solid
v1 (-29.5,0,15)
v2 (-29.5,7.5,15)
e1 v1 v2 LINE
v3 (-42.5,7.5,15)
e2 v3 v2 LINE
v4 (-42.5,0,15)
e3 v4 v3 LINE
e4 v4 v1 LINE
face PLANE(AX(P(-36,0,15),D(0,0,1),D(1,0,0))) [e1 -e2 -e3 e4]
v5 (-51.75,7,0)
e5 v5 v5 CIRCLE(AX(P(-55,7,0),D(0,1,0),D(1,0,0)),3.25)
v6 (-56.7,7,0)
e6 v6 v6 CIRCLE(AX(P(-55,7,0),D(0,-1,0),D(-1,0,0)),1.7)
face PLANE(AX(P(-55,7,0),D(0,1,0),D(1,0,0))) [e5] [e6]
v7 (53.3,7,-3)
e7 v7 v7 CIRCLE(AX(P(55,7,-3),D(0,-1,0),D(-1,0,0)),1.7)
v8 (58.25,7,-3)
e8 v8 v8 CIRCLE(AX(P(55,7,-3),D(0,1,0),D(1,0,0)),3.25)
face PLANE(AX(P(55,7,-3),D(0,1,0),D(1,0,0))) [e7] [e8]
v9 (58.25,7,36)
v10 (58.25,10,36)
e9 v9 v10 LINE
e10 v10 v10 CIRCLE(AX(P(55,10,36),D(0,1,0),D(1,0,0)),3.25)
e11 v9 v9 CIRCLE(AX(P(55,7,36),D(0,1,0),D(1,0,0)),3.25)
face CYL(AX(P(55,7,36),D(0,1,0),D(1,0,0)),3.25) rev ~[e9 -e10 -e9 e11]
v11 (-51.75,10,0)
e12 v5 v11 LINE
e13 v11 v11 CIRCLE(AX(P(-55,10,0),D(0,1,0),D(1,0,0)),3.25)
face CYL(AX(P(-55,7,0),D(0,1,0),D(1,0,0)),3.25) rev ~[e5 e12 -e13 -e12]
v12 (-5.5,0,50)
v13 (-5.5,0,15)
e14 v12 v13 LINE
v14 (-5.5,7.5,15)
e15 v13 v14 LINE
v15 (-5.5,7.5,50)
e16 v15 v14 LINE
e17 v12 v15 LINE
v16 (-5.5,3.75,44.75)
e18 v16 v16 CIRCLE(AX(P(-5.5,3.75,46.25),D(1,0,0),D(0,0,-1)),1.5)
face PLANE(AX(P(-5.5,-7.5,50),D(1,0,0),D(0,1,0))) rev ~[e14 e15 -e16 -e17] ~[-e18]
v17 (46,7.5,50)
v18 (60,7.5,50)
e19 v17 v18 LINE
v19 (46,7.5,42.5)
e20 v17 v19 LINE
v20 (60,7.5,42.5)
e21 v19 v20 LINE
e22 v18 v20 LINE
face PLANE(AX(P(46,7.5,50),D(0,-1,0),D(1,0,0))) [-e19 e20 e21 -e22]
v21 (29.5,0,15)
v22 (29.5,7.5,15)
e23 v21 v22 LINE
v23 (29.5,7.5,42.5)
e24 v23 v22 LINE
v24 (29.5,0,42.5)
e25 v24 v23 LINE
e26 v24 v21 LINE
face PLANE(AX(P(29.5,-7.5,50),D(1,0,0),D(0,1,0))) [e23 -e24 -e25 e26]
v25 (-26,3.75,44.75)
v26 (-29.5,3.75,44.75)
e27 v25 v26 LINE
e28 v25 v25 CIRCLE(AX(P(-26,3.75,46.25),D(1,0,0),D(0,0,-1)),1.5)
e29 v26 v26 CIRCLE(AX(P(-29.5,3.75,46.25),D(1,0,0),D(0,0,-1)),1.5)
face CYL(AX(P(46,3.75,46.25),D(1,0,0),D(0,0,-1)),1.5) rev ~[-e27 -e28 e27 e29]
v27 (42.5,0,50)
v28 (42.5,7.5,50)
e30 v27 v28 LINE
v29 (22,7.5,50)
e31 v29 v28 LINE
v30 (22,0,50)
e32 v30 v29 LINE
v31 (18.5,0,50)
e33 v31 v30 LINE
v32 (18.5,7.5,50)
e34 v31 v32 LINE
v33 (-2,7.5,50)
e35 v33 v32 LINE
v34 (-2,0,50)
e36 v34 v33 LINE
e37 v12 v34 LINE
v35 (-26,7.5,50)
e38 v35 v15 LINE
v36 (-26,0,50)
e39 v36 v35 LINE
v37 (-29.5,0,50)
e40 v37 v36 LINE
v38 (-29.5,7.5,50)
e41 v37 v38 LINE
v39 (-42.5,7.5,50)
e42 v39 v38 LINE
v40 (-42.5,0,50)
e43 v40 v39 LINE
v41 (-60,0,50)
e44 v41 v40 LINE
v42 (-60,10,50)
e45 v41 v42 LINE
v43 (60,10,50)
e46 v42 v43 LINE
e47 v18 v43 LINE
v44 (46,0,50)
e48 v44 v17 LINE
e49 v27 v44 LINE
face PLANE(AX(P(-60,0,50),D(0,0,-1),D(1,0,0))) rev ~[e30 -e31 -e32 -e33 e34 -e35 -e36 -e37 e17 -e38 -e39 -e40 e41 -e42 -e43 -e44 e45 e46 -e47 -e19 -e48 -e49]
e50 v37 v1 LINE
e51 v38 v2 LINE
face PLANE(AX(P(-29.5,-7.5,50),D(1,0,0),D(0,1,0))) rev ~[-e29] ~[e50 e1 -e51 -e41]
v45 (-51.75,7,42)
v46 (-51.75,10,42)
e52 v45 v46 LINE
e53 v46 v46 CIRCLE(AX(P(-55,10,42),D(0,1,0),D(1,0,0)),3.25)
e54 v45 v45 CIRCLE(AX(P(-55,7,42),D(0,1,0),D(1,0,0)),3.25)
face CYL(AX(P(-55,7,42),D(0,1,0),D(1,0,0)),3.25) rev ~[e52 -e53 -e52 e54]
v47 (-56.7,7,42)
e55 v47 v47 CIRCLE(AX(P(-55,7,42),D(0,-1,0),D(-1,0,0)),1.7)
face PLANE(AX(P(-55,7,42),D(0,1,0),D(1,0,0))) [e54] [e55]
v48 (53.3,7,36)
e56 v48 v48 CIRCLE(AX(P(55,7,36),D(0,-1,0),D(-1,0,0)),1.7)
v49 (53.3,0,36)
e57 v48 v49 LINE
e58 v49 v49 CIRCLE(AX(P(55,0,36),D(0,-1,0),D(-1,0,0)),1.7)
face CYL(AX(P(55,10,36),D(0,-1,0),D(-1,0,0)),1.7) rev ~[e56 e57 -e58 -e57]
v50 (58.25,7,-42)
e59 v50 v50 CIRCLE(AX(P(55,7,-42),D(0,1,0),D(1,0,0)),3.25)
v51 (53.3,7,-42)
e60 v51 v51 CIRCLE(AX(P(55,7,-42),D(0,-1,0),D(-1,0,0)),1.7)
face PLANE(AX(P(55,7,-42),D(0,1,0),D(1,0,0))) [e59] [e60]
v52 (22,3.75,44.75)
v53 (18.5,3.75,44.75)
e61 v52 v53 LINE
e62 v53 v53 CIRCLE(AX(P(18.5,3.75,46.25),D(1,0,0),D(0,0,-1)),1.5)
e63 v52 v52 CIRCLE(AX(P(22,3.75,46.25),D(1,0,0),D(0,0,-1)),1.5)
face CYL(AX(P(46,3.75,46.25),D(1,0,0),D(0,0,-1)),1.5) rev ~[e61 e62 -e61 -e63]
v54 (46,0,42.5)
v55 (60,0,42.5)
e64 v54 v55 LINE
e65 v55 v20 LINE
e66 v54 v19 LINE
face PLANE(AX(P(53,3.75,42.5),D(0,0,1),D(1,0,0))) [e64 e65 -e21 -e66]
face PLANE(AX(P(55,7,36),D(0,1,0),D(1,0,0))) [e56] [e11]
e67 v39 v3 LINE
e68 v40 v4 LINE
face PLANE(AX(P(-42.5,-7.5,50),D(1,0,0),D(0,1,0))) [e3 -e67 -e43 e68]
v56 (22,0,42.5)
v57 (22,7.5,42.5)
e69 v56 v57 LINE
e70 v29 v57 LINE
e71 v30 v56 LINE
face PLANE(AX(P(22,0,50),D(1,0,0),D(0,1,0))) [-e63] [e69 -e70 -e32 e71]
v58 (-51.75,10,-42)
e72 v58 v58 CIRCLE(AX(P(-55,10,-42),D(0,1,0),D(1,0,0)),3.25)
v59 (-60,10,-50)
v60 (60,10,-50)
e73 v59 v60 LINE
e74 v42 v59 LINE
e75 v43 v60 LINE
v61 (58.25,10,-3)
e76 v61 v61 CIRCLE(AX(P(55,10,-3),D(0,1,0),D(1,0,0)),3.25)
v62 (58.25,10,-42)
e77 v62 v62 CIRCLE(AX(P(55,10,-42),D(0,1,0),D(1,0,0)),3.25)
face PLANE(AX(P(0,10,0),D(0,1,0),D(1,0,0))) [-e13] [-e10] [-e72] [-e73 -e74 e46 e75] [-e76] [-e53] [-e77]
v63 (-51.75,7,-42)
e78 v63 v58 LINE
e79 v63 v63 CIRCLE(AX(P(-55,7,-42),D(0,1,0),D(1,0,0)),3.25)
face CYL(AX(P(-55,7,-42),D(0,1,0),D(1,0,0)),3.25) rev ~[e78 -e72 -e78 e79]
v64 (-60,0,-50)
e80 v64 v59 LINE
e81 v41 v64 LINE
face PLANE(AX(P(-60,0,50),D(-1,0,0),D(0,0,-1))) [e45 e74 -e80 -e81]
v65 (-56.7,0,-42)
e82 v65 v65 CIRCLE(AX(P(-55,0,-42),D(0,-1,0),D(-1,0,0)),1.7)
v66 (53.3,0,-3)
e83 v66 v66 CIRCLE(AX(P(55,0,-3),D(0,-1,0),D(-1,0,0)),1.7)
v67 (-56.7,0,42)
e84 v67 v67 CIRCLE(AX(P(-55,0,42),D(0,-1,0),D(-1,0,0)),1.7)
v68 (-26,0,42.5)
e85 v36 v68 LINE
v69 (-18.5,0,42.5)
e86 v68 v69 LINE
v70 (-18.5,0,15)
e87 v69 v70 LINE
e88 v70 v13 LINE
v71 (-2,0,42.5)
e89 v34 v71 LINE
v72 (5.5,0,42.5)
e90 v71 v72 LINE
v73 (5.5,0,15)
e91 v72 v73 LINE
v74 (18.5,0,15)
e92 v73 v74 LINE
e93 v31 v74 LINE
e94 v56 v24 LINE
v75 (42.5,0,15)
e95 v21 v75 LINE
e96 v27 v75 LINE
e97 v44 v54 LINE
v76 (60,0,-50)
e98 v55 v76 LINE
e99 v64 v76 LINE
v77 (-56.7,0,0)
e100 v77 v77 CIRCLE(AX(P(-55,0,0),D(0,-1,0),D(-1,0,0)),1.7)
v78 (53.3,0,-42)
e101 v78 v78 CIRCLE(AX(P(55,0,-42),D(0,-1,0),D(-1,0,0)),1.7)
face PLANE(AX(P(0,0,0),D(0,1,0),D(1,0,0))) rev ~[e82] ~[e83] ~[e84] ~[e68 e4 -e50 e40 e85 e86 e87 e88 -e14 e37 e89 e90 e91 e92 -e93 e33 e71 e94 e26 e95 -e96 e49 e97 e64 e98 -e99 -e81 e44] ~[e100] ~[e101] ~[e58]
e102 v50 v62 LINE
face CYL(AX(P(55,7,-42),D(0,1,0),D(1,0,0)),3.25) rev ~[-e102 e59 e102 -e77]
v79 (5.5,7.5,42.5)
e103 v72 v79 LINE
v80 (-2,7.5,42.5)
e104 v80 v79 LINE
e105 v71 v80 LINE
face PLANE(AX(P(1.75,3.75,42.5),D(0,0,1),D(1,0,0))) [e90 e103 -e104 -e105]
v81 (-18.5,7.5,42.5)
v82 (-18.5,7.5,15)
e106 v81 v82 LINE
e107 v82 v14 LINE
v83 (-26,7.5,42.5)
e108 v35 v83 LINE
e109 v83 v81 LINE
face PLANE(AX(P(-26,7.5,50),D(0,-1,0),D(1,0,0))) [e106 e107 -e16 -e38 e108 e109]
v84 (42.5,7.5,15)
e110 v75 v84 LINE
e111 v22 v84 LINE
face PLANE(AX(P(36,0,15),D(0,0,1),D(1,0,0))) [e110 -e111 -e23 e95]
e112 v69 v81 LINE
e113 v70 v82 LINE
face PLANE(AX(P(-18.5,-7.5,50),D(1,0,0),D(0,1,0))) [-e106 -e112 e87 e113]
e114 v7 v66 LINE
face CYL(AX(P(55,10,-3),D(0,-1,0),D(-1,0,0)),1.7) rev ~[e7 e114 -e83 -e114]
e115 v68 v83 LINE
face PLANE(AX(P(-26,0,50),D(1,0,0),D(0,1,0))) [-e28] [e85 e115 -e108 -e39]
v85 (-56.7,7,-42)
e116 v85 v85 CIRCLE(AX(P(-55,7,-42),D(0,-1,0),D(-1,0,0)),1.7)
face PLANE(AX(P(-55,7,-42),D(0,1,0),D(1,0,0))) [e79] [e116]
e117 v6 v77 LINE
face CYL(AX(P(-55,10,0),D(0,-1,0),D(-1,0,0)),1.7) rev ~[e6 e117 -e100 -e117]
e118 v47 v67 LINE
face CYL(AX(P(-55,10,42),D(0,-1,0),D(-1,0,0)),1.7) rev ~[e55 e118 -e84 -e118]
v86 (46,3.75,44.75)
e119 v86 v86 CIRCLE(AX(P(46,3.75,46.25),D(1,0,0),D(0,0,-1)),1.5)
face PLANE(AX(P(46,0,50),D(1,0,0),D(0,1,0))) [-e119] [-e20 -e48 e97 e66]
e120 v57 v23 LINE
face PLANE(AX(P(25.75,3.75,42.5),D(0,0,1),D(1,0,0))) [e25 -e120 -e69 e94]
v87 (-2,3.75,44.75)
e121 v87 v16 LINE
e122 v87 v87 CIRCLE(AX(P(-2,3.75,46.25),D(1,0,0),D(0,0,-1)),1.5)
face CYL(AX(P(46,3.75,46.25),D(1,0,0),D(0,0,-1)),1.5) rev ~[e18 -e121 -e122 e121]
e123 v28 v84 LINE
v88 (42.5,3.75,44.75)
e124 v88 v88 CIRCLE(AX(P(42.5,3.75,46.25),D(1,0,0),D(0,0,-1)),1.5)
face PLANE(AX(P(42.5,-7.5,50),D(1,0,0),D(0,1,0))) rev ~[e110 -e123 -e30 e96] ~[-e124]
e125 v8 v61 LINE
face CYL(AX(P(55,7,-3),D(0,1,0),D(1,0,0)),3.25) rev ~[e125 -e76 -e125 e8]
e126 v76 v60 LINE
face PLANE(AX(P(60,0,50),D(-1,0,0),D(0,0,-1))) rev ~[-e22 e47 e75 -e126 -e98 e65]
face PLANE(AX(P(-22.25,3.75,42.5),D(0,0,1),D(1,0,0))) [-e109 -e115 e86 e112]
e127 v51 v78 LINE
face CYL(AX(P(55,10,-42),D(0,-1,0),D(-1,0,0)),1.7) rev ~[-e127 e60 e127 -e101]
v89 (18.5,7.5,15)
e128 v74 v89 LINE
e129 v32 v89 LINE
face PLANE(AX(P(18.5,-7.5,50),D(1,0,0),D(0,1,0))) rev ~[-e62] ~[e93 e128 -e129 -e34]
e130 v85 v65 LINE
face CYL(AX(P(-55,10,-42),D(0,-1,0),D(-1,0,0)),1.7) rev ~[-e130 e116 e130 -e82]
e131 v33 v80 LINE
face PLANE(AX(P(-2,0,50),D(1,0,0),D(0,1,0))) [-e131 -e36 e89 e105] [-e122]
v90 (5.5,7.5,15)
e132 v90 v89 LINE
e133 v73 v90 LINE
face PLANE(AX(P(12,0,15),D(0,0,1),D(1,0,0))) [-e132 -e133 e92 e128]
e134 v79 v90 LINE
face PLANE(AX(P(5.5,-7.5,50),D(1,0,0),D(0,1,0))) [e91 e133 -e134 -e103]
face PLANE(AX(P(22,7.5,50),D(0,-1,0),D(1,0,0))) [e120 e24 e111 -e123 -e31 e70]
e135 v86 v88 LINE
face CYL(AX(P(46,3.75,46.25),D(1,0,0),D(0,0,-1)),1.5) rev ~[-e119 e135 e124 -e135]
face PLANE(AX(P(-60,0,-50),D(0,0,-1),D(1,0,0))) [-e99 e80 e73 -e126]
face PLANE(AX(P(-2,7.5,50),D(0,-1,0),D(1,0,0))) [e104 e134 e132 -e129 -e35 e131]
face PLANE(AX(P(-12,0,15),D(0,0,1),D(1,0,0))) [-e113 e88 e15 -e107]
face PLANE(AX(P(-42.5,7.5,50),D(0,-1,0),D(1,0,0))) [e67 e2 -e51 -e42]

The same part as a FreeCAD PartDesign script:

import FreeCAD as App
import Part
import Sketcher

doc = App.newDocument("Part")
body = doc.addObject("PartDesign::Body", "Body")

sketch1 = body.newObject("Sketcher::SketchObject", "Sketch")
sketch1.AttachmentSupport = (doc.getObject("XZ_Plane"), [""])
sketch1.MapMode = "FlatFace"
sketch1.addGeometry([
    Part.LineSegment(App.Vector(-60, -50, 0), App.Vector(-60, 50, 0)),
    Part.LineSegment(App.Vector(-60, 50, 0), App.Vector(60, 50, 0)),
    Part.LineSegment(App.Vector(60, 50, 0), App.Vector(60, -50, 0)),
    Part.LineSegment(App.Vector(60, -50, 0), App.Vector(-60, -50, 0)),
], False)
sketch1.addConstraint([
    Sketcher.Constraint("Coincident", 0, 2, 1, 1),
    Sketcher.Constraint("Coincident", 1, 2, 2, 1),
    Sketcher.Constraint("Coincident", 2, 2, 3, 1),
    Sketcher.Constraint("Coincident", 3, 2, 0, 1),
    Sketcher.Constraint("Vertical", 0),
    Sketcher.Constraint("Horizontal", 1),
    Sketcher.Constraint("Vertical", 2),
    Sketcher.Constraint("Horizontal", 3),
    Sketcher.Constraint("Symmetric", 0, 2, 2, 2, -1, 1),
    Sketcher.Constraint("DistanceX", 1, 1, 1, 2, 120.0),
    Sketcher.Constraint("DistanceY", 0, 1, 0, 2, 100.0),
])
pad1 = body.newObject("PartDesign::Pad", "Pad")
pad1.Profile = sketch1
pad1.Length = 10
pad1.Reversed = True

sketch2 = body.newObject("Sketcher::SketchObject", "Sketch001")
sketch2.AttachmentSupport = (doc.getObject("XY_Plane"), [""])
sketch2.MapMode = "FlatFace"
sketch2.AttachmentOffset = App.Placement(App.Vector(0, 0, 50), App.Rotation())
sketch2.addGeometry([
    Part.LineSegment(App.Vector(-42, 8, 0), App.Vector(-42, -8, 0)),
    Part.LineSegment(App.Vector(-42, -8, 0), App.Vector(-30, -8, 0)),
    Part.LineSegment(App.Vector(-30, -8, 0), App.Vector(-30, 8, 0)),
    Part.LineSegment(App.Vector(-30, 8, 0), App.Vector(-42, 8, 0)),
    Part.LineSegment(App.Vector(-18, 8, 0), App.Vector(-18, -8, 0)),
    Part.LineSegment(App.Vector(-18, -8, 0), App.Vector(-6, -8, 0)),
    Part.LineSegment(App.Vector(-6, -8, 0), App.Vector(-6, 8, 0)),
    Part.LineSegment(App.Vector(-6, 8, 0), App.Vector(-18, 8, 0)),
    Part.LineSegment(App.Vector(6, 8, 0), App.Vector(6, -8, 0)),
    Part.LineSegment(App.Vector(6, -8, 0), App.Vector(18, -8, 0)),
    Part.LineSegment(App.Vector(18, -8, 0), App.Vector(18, 8, 0)),
    Part.LineSegment(App.Vector(18, 8, 0), App.Vector(6, 8, 0)),
    Part.LineSegment(App.Vector(30, 8, 0), App.Vector(30, -8, 0)),
    Part.LineSegment(App.Vector(30, -8, 0), App.Vector(42, -8, 0)),
    Part.LineSegment(App.Vector(42, -8, 0), App.Vector(42, 8, 0)),
    Part.LineSegment(App.Vector(42, 8, 0), App.Vector(30, 8, 0)),
], False)
sketch2.addConstraint([
    Sketcher.Constraint("Coincident", 0, 2, 1, 1),
    Sketcher.Constraint("Coincident", 1, 2, 2, 1),
    Sketcher.Constraint("Coincident", 2, 2, 3, 1),
    Sketcher.Constraint("Coincident", 3, 2, 0, 1),
    Sketcher.Constraint("Coincident", 4, 2, 5, 1),
    Sketcher.Constraint("Coincident", 5, 2, 6, 1),
    Sketcher.Constraint("Coincident", 6, 2, 7, 1),
    Sketcher.Constraint("Coincident", 7, 2, 4, 1),
    Sketcher.Constraint("Coincident", 8, 2, 9, 1),
    Sketcher.Constraint("Coincident", 9, 2, 10, 1),
    Sketcher.Constraint("Coincident", 10, 2, 11, 1),
    Sketcher.Constraint("Coincident", 11, 2, 8, 1),
    Sketcher.Constraint("Coincident", 12, 2, 13, 1),
    Sketcher.Constraint("Coincident", 13, 2, 14, 1),
    Sketcher.Constraint("Coincident", 14, 2, 15, 1),
    Sketcher.Constraint("Coincident", 15, 2, 12, 1),
    Sketcher.Constraint("Vertical", 0),
    Sketcher.Constraint("Horizontal", 1),
    Sketcher.Constraint("Vertical", 2),
    Sketcher.Constraint("Horizontal", 3),
    Sketcher.Constraint("Vertical", 4),
    Sketcher.Constraint("Horizontal", 5),
    Sketcher.Constraint("Vertical", 6),
    Sketcher.Constraint("Horizontal", 7),
    Sketcher.Constraint("Vertical", 8),
    Sketcher.Constraint("Horizontal", 9),
    Sketcher.Constraint("Vertical", 10),
    Sketcher.Constraint("Horizontal", 11),
    Sketcher.Constraint("Vertical", 12),
    Sketcher.Constraint("Horizontal", 13),
    Sketcher.Constraint("Vertical", 14),
    Sketcher.Constraint("Horizontal", 15),
    Sketcher.Constraint("Symmetric", 6, 2, 8, 2, -1, 1),
    Sketcher.Constraint("Symmetric", 4, 2, 10, 2, -1, 1),
    Sketcher.Constraint("Symmetric", 2, 2, 12, 2, -1, 1),
    Sketcher.Constraint("Symmetric", 0, 2, 14, 2, -1, 1),
    Sketcher.Constraint("Horizontal", 1, 2, 4, 2),
    Sketcher.Constraint("Horizontal", 3, 2, 6, 2),
    Sketcher.Constraint("Horizontal", 5, 2, 8, 2),
    Sketcher.Constraint("Equal", 3, 5),
    Sketcher.Constraint("DistanceX", 1, 1, 1, 2, 13.0),
    Sketcher.Constraint("DistanceY", 0, 2, 0, 1, 15.0),
    Sketcher.Constraint("DistanceX", 1, 2, 4, 2, 11.0),
    Sketcher.Constraint("DistanceX", 5, 2, 8, 2, 11.0),
])
pocket1 = body.newObject("PartDesign::Pocket", "Pocket")
pocket1.Profile = sketch2
pocket1.Length = 35

sketch3 = body.newObject("Sketcher::SketchObject", "Sketch002")
sketch3.AttachmentSupport = (doc.getObject("XY_Plane"), [""])
sketch3.MapMode = "FlatFace"
sketch3.AttachmentOffset = App.Placement(App.Vector(0, 0, 50), App.Rotation())
sketch3.addGeometry([
    Part.LineSegment(App.Vector(-26, 8, 0), App.Vector(-26, 0, 0)),
    Part.LineSegment(App.Vector(-26, 0, 0), App.Vector(-18, 0, 0)),
    Part.LineSegment(App.Vector(-18, 0, 0), App.Vector(-18, 8, 0)),
    Part.LineSegment(App.Vector(-18, 8, 0), App.Vector(-26, 8, 0)),
    Part.LineSegment(App.Vector(-2, 8, 0), App.Vector(-2, 0, 0)),
    Part.LineSegment(App.Vector(-2, 0, 0), App.Vector(6, 0, 0)),
    Part.LineSegment(App.Vector(6, 0, 0), App.Vector(6, 8, 0)),
    Part.LineSegment(App.Vector(6, 8, 0), App.Vector(-2, 8, 0)),
    Part.LineSegment(App.Vector(22, 8, 0), App.Vector(22, 0, 0)),
    Part.LineSegment(App.Vector(22, 0, 0), App.Vector(30, 0, 0)),
    Part.LineSegment(App.Vector(30, 0, 0), App.Vector(30, 8, 0)),
    Part.LineSegment(App.Vector(30, 8, 0), App.Vector(22, 8, 0)),
    Part.LineSegment(App.Vector(46, 8, 0), App.Vector(46, 0, 0)),
    Part.LineSegment(App.Vector(46, 0, 0), App.Vector(60, 0, 0)),
    Part.LineSegment(App.Vector(60, 0, 0), App.Vector(60, 8, 0)),
    Part.LineSegment(App.Vector(60, 8, 0), App.Vector(46, 8, 0)),
], False)
sketch3.addConstraint([
    Sketcher.Constraint("Coincident", 0, 2, 1, 1),
    Sketcher.Constraint("Coincident", 1, 2, 2, 1),
    Sketcher.Constraint("Coincident", 2, 2, 3, 1),
    Sketcher.Constraint("Coincident", 3, 2, 0, 1),
    Sketcher.Constraint("Coincident", 4, 2, 5, 1),
    Sketcher.Constraint("Coincident", 5, 2, 6, 1),
    Sketcher.Constraint("Coincident", 6, 2, 7, 1),
    Sketcher.Constraint("Coincident", 7, 2, 4, 1),
    Sketcher.Constraint("Coincident", 8, 2, 9, 1),
    Sketcher.Constraint("Coincident", 9, 2, 10, 1),
    Sketcher.Constraint("Coincident", 10, 2, 11, 1),
    Sketcher.Constraint("Coincident", 11, 2, 8, 1),
    Sketcher.Constraint("Coincident", 12, 2, 13, 1),
    Sketcher.Constraint("Coincident", 13, 2, 14, 1),
    Sketcher.Constraint("Coincident", 14, 2, 15, 1),
    Sketcher.Constraint("Coincident", 15, 2, 12, 1),
    Sketcher.Constraint("Vertical", 0),
    Sketcher.Constraint("Horizontal", 1),
    Sketcher.Constraint("Vertical", 2),
    Sketcher.Constraint("Horizontal", 3),
    Sketcher.Constraint("Vertical", 4),
    Sketcher.Constraint("Horizontal", 5),
    Sketcher.Constraint("Vertical", 6),
    Sketcher.Constraint("Horizontal", 7),
    Sketcher.Constraint("Vertical", 8),
    Sketcher.Constraint("Horizontal", 9),
    Sketcher.Constraint("Vertical", 10),
    Sketcher.Constraint("Horizontal", 11),
    Sketcher.Constraint("Vertical", 12),
    Sketcher.Constraint("Horizontal", 13),
    Sketcher.Constraint("Vertical", 14),
    Sketcher.Constraint("Horizontal", 15),
    Sketcher.Constraint("PointOnObject", 0, 2, -1),
    Sketcher.Constraint("PointOnObject", 4, 2, -1),
    Sketcher.Constraint("PointOnObject", 8, 2, -1),
    Sketcher.Constraint("PointOnObject", 12, 2, -1),
    Sketcher.Constraint("Horizontal", 3, 2, 6, 2),
    Sketcher.Constraint("Horizontal", 7, 2, 10, 2),
    Sketcher.Constraint("Horizontal", 11, 2, 14, 2),
    Sketcher.Constraint("Equal", 3, 5),
    Sketcher.Constraint("Equal", 7, 9),
    Sketcher.Constraint("Equal", 11, 0),
    Sketcher.Constraint("DistanceX", 13, 1, 13, 2, 14.0),
    Sketcher.Constraint("DistanceX", 1, 1, 1, 2, 7.5),
    Sketcher.Constraint("DistanceX", 0, 2, -1, 1, 26.0),
    Sketcher.Constraint("DistanceX", 4, 2, -1, 1, 2.0),
    Sketcher.Constraint("DistanceX", -1, 1, 8, 2, 22.0),
    Sketcher.Constraint("DistanceX", -1, 1, 12, 2, 46.0),
])
pocket2 = body.newObject("PartDesign::Pocket", "Pocket001")
pocket2.Profile = sketch3
pocket2.Length = 7.5

sketch4 = body.newObject("Sketcher::SketchObject", "Sketch003")
sketch4.AttachmentSupport = (doc.getObject("YZ_Plane"), [""])
sketch4.MapMode = "FlatFace"
sketch4.AttachmentOffset = App.Placement(App.Vector(0, 0, 46), App.Rotation())
sketch4.addGeometry(Part.Circle(App.Vector(3.8, 46.2, 0), App.Vector(0, 0, 1), 1.5), False)
sketch4.addConstraint([
    Sketcher.Constraint("Diameter", 0, 3.0),
    Sketcher.Constraint("DistanceX", -1, 1, 0, 3, 3.75),
    Sketcher.Constraint("DistanceY", -1, 1, 0, 3, 46.25),
])
pocket3 = body.newObject("PartDesign::Pocket", "Pocket002")
pocket3.Profile = sketch4
pocket3.Length = 75.5

sketch5 = body.newObject("Sketcher::SketchObject", "Sketch004")
sketch5.AttachmentSupport = (doc.getObject("XZ_Plane"), [""])
sketch5.MapMode = "FlatFace"
sketch5.AttachmentOffset = App.Placement(App.Vector(0, 0, -10), App.Rotation())
sketch5.addGeometry([
    Part.Circle(App.Vector(55, -42, 0), App.Vector(0, 0, 1), 1.7),
    Part.Circle(App.Vector(55, 36, 0), App.Vector(0, 0, 1), 1.7),
    Part.Circle(App.Vector(-55, -42, 0), App.Vector(0, 0, 1), 1.7),
    Part.Circle(App.Vector(-55, 42, 0), App.Vector(0, 0, 1), 1.7),
    Part.Circle(App.Vector(-55, 0, 0), App.Vector(0, 0, 1), 1.7),
    Part.Circle(App.Vector(55, -3, 0), App.Vector(0, 0, 1), 1.7),
], False)
sketch5.addConstraint([
    Sketcher.Constraint("Equal", 0, 1),
    Sketcher.Constraint("Equal", 1, 2),
    Sketcher.Constraint("Equal", 2, 3),
    Sketcher.Constraint("Equal", 3, 4),
    Sketcher.Constraint("Equal", 4, 5),
    Sketcher.Constraint("Symmetric", 0, 3, 3, 3, -1, 1),
    Sketcher.Constraint("Symmetric", 0, 3, 2, 3, -2),
    Sketcher.Constraint("PointOnObject", 4, 3, -1),
    Sketcher.Constraint("Vertical", 0, 3, 1, 3),
    Sketcher.Constraint("Vertical", 3, 3, 4, 3),
    Sketcher.Constraint("Vertical", 1, 3, 5, 3),
    Sketcher.Constraint("Diameter", 0, 3.4),
    Sketcher.Constraint("DistanceX", -1, 1, 0, 3, 55.0),
    Sketcher.Constraint("DistanceY", 0, 3, -1, 1, 42.0),
    Sketcher.Constraint("DistanceY", -1, 1, 1, 3, 36.0),
    Sketcher.Constraint("DistanceY", 5, 3, -1, 1, 3.0),
])
doc.recompute()
hole = body.newObject("PartDesign::Hole", "Hole")
hole.Profile = sketch5
hole.ThreadType = "None"
hole.Diameter = 3.4
hole.DepthType = "Dimension"
hole.Depth = 23
hole.DrillPoint = "Angled"
hole.DrillPointAngle = 118
hole.HoleCutType = "Counterbore"
hole.HoleCutDiameter = 6.5
hole.HoleCutDepth = 3
hole.Reversed = True

doc.recompute()
